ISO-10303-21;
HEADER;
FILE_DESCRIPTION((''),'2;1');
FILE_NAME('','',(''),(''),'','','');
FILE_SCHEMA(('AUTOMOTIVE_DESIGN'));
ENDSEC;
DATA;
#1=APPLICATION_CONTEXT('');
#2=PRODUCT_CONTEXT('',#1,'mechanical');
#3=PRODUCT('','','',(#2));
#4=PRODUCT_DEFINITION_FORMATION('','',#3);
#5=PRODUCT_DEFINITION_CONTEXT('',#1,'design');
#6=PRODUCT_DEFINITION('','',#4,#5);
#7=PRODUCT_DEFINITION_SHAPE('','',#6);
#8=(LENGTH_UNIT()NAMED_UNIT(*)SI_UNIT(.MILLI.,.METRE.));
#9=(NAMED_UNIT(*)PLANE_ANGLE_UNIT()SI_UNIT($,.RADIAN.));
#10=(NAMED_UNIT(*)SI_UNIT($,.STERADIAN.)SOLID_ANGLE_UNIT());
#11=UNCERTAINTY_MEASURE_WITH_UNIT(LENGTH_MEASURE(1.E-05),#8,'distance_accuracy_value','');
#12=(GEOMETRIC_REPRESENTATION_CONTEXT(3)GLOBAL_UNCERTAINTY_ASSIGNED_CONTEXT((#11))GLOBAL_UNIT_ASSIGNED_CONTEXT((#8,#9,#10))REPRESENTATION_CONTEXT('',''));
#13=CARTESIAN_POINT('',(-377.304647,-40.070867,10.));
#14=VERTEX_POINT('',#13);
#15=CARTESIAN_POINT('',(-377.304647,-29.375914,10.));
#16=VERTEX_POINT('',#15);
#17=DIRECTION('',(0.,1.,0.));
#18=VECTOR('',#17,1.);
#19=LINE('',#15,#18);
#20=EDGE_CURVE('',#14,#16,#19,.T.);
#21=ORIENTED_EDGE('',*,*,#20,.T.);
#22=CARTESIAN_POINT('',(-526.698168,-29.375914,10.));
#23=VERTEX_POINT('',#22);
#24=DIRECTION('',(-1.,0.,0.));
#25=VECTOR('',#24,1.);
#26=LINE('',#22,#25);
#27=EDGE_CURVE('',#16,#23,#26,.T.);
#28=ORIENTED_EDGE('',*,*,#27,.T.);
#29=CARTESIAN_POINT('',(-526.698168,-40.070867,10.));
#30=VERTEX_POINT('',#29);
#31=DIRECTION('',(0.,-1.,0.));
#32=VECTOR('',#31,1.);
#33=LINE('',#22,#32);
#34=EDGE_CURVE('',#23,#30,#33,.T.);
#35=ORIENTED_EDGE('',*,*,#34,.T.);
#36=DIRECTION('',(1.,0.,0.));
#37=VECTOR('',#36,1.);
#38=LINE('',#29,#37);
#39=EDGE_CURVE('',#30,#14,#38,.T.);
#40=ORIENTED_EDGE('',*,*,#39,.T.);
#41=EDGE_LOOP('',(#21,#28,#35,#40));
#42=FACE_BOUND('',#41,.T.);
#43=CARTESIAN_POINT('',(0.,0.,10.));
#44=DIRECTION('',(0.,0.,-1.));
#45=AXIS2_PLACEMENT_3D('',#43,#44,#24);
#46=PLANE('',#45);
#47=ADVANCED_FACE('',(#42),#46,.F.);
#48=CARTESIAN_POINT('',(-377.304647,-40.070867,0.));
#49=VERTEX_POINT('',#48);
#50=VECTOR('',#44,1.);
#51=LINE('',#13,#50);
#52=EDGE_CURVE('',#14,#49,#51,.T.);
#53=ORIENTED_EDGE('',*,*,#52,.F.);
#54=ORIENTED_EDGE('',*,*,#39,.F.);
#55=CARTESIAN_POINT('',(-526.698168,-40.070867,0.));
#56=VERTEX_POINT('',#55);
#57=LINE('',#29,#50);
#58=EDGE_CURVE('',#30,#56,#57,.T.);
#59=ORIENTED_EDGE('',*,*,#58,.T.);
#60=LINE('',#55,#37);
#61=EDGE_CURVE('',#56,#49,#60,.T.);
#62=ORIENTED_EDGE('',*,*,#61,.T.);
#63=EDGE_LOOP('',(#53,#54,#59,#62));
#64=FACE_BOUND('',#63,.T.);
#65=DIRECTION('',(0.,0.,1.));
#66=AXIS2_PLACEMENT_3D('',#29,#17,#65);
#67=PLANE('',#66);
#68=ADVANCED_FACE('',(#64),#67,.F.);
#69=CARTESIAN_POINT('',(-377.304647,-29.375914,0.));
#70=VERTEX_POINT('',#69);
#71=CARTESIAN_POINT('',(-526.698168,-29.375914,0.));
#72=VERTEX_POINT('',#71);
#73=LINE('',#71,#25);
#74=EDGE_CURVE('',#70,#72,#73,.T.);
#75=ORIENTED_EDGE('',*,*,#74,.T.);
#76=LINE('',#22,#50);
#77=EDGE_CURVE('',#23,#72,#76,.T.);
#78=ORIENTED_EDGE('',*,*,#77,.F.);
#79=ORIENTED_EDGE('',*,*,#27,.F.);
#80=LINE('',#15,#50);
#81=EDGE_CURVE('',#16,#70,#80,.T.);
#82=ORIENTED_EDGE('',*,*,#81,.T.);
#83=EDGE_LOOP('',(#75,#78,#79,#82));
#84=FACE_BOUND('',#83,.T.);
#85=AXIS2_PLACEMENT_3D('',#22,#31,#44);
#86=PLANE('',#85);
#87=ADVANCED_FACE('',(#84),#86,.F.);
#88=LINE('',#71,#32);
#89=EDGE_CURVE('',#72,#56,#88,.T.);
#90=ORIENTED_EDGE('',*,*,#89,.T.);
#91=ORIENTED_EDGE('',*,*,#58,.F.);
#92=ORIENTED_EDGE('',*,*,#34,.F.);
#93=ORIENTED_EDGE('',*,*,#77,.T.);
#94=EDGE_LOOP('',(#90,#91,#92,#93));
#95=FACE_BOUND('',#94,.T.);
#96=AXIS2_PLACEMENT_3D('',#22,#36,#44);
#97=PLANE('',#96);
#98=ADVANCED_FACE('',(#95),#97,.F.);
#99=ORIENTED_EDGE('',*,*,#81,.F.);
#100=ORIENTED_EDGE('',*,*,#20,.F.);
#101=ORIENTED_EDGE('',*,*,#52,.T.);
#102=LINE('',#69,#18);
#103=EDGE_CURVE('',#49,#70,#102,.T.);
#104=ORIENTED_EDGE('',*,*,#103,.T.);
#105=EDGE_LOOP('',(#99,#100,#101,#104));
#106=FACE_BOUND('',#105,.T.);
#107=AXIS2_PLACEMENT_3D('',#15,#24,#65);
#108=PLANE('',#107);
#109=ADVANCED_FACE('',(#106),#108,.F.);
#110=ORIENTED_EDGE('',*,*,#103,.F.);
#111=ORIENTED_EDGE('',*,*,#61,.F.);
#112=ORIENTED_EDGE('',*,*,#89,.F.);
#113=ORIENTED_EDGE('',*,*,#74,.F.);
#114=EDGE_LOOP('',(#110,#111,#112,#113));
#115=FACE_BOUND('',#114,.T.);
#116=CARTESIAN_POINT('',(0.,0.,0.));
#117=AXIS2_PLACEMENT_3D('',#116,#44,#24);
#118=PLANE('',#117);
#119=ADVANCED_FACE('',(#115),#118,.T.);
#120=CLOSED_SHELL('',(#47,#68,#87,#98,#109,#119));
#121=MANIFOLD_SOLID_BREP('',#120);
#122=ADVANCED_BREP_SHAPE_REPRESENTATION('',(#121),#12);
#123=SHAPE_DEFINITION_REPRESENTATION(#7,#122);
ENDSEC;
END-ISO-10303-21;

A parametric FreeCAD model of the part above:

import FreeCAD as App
import Part
import Sketcher

V = App.Vector

doc = App.newDocument("Part")
body = doc.addObject("PartDesign::Body", "Body")

sketch1 = doc.addObject("Sketcher::SketchObject", "Sketch")
body.addObject(sketch1)
sketch1.AttachmentSupport = (doc.XY_Plane, [""])
sketch1.MapMode = "FlatFace"
sketch1.addGeometry([
    Part.LineSegment(V(-527, -29, 0), V(-527, -40, 0)),
    Part.LineSegment(V(-527, -40, 0), V(-377, -40, 0)),
    Part.LineSegment(V(-377, -40, 0), V(-377, -29, 0)),
    Part.LineSegment(V(-377, -29, 0), V(-527, -29, 0)),
], False)
sketch1.addConstraint([
    Sketcher.Constraint("Coincident", 0, 2, 1, 1),
    Sketcher.Constraint("Coincident", 1, 2, 2, 1),
    Sketcher.Constraint("Coincident", 2, 2, 3, 1),
    Sketcher.Constraint("Coincident", 3, 2, 0, 1),
    Sketcher.Constraint("Vertical", 0),
    Sketcher.Constraint("Horizontal", 1),
    Sketcher.Constraint("Vertical", 2),
    Sketcher.Constraint("Horizontal", 3),
    Sketcher.Constraint("DistanceX", 1, 1, 1, 2, 149.393521),
    Sketcher.Constraint("DistanceY", 0, 2, 0, 1, 10.694953),
    Sketcher.Constraint("DistanceX", 0, 2, -1, 1, 526.698168),
    Sketcher.Constraint("DistanceY", 0, 2, -1, 1, 40.070867),
])
pad1 = doc.addObject("PartDesign::Pad", "Pad")
body.addObject(pad1)
pad1.Profile = sketch1
pad1.Length = 10

doc.recompute()
